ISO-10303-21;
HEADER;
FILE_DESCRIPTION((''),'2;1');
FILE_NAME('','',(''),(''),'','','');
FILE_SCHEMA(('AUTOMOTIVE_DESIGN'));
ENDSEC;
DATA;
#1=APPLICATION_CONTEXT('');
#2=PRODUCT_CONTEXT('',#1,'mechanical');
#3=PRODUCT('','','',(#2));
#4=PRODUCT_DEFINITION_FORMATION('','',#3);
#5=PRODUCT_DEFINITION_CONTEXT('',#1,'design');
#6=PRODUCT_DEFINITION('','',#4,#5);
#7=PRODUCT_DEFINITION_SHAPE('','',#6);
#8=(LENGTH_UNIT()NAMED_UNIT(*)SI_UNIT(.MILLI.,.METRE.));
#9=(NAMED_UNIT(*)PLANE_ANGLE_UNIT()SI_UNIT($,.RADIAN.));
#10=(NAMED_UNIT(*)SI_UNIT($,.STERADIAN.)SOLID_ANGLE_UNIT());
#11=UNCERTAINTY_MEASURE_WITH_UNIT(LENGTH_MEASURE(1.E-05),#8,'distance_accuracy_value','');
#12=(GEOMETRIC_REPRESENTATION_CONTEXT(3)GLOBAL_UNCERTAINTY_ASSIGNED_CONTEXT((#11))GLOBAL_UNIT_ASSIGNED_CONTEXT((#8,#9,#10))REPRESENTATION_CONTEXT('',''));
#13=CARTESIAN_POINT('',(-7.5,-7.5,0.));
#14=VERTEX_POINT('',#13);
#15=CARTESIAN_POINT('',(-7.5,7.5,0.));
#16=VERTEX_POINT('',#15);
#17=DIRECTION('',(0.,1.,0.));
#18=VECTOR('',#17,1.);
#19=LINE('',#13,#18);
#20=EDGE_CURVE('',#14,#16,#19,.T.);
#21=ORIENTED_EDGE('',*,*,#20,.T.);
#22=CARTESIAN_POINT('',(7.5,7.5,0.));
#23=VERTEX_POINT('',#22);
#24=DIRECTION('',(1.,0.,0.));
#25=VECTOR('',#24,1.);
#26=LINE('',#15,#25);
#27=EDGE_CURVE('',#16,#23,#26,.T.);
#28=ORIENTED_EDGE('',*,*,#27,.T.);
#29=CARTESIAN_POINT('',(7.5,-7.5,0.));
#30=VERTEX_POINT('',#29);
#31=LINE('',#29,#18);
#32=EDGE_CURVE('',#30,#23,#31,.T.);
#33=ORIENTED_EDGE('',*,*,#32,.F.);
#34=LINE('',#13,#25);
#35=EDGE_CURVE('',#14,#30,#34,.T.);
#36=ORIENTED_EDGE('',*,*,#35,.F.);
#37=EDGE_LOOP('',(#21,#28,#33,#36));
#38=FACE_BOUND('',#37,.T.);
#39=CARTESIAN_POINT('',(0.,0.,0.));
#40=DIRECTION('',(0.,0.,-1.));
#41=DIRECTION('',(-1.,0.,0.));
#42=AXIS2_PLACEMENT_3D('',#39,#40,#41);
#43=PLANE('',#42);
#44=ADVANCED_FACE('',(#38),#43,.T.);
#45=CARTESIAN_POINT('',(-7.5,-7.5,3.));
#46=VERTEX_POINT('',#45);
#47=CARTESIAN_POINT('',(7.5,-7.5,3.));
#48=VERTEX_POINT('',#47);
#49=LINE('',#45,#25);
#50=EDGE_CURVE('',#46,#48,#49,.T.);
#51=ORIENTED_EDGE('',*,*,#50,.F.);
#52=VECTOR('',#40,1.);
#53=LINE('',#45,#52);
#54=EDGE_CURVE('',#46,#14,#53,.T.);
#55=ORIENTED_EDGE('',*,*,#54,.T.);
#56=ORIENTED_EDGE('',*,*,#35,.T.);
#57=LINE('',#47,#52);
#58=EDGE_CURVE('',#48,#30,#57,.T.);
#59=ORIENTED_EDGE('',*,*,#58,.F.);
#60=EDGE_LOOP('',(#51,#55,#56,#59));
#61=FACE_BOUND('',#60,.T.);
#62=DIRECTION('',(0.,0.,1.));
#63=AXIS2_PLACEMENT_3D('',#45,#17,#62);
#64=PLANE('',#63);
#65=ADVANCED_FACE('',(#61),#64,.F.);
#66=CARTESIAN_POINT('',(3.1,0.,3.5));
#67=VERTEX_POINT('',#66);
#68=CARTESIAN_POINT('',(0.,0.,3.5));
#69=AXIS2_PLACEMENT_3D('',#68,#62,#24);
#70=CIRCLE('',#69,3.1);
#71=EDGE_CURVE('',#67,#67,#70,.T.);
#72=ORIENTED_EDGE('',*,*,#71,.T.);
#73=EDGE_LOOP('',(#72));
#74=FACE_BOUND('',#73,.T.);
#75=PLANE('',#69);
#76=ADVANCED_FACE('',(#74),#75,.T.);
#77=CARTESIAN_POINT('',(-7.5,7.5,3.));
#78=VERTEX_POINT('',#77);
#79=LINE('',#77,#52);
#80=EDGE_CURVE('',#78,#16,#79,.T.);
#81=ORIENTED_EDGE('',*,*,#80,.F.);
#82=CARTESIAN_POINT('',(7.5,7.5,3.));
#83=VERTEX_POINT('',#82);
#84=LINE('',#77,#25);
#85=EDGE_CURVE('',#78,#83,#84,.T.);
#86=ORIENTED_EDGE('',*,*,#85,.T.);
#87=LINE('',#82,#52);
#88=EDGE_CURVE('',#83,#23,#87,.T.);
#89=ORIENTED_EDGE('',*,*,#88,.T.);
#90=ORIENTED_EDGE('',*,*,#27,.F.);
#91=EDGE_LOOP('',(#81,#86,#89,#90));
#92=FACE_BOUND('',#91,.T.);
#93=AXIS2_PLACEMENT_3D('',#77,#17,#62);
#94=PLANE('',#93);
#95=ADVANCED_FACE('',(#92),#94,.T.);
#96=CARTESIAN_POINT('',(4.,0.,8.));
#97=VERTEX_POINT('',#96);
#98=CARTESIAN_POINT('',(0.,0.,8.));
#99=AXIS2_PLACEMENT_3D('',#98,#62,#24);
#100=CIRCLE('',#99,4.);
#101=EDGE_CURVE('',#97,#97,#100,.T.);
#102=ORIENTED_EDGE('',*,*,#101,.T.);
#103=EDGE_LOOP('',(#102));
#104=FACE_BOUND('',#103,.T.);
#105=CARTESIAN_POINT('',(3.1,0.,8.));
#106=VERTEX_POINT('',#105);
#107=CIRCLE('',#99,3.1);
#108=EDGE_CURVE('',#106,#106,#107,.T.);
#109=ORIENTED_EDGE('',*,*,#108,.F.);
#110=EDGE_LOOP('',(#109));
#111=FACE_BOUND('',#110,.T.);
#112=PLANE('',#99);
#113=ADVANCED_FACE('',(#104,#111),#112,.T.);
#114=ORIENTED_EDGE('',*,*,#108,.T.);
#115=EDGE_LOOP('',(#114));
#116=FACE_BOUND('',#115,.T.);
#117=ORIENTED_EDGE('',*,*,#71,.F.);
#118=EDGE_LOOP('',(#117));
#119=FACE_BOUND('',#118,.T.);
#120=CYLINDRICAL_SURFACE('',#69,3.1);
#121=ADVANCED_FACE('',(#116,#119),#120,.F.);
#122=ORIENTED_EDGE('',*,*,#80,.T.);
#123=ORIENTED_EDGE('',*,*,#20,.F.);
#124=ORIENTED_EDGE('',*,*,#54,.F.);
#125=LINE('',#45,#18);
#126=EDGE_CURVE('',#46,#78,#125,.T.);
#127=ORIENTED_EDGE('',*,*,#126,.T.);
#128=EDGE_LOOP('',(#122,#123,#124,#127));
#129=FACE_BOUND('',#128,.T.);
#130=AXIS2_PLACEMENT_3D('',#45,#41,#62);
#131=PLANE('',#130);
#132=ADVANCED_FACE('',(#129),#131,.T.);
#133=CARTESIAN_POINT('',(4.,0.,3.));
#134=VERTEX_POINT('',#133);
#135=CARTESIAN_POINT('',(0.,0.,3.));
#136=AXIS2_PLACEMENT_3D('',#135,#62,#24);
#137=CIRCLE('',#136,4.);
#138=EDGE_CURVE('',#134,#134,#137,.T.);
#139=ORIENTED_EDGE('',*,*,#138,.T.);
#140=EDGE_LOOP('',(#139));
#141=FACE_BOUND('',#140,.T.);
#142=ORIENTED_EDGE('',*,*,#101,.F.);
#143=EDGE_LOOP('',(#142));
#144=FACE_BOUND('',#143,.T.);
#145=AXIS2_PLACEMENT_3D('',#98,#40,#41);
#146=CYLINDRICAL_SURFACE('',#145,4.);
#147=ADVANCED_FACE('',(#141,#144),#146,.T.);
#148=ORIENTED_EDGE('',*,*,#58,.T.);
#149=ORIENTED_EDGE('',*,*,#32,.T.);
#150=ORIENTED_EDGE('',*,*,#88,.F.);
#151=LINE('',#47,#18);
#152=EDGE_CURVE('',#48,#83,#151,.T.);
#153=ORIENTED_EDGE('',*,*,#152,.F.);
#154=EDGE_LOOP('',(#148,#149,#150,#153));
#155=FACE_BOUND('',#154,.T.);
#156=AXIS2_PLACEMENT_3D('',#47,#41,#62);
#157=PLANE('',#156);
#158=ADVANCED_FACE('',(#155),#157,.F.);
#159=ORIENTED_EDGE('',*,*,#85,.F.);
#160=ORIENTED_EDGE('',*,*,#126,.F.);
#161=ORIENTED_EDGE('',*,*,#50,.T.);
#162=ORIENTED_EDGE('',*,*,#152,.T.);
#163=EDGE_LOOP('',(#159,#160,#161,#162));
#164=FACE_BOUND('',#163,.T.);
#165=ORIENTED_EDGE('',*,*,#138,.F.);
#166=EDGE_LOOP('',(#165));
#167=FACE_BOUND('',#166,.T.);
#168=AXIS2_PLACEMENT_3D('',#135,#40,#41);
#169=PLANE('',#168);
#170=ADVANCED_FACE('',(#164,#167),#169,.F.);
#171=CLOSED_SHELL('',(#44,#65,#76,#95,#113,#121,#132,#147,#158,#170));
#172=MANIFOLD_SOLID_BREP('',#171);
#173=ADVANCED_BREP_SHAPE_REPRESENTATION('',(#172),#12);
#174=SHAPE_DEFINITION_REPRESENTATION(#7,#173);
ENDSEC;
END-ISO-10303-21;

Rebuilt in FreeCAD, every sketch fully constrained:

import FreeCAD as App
import Part
import Sketcher
from FreeCAD import Vector

doc = App.newDocument("Part")
body = doc.addObject("PartDesign::Body", "Body")

sketch1 = body.newObject("Sketcher::SketchObject", "Sketch")
sketch1.AttachmentSupport = (doc.getObject("XY_Plane"), [""])
sketch1.MapMode = "FlatFace"
sketch1.addGeometry(Part.LineSegment(Vector(-8, 8, 0), Vector(-8, -8, 0)), False)
sketch1.addGeometry(Part.LineSegment(Vector(-8, -8, 0), Vector(8, -8, 0)), False)
sketch1.addGeometry(Part.LineSegment(Vector(8, -8, 0), Vector(8, 8, 0)), False)
sketch1.addGeometry(Part.LineSegment(Vector(8, 8, 0), Vector(-8, 8, 0)), False)
sketch1.addConstraint(Sketcher.Constraint("Coincident", 0, 2, 1, 1))
sketch1.addConstraint(Sketcher.Constraint("Coincident", 1, 2, 2, 1))
sketch1.addConstraint(Sketcher.Constraint("Coincident", 2, 2, 3, 1))
sketch1.addConstraint(Sketcher.Constraint("Coincident", 3, 2, 0, 1))
sketch1.addConstraint(Sketcher.Constraint("Vertical", 0))
sketch1.addConstraint(Sketcher.Constraint("Horizontal", 1))
sketch1.addConstraint(Sketcher.Constraint("Vertical", 2))
sketch1.addConstraint(Sketcher.Constraint("Horizontal", 3))
sketch1.addConstraint(Sketcher.Constraint("Symmetric", 0, 2, 2, 2, -1, 1))
sketch1.addConstraint(Sketcher.Constraint("Equal", 3, 0))
sketch1.addConstraint(Sketcher.Constraint("DistanceX", 1, 1, 1, 2, 15.0))
pad1 = body.newObject("PartDesign::Pad", "Pad")
pad1.Profile = sketch1
pad1.Length = 3

sketch2 = body.newObject("Sketcher::SketchObject", "Sketch001")
sketch2.AttachmentSupport = (doc.getObject("XY_Plane"), [""])
sketch2.MapMode = "FlatFace"
sketch2.AttachmentOffset = App.Placement(Vector(0, 0, 3), App.Rotation())
sketch2.addGeometry(Part.Circle(Vector(0, 0, 0), Vector(0, 0, 1), 4), False)
sketch2.addConstraint(Sketcher.Constraint("Coincident", 0, 3, -1, 1))
sketch2.addConstraint(Sketcher.Constraint("Diameter", 0, 8.0))
pad2 = body.newObject("PartDesign::Pad", "Pad001")
pad2.Profile = sketch2
pad2.Length = 5

sketch3 = body.newObject("Sketcher::SketchObject", "Sketch002")
sketch3.AttachmentSupport = (doc.getObject("XY_Plane"), [""])
sketch3.MapMode = "FlatFace"
sketch3.AttachmentOffset = App.Placement(Vector(0, 0, 8), App.Rotation())
sketch3.addGeometry(Part.Circle(Vector(0, 0, 0), Vector(0, 0, 1), 3.1), False)
sketch3.addConstraint(Sketcher.Constraint("Coincident", 0, 3, -1, 1))
sketch3.addConstraint(Sketcher.Constraint("Diameter", 0, 6.2))
pocket1 = body.newObject("PartDesign::Pocket", "Pocket")
pocket1.Profile = sketch3
pocket1.Length = 4.5

doc.recompute()
